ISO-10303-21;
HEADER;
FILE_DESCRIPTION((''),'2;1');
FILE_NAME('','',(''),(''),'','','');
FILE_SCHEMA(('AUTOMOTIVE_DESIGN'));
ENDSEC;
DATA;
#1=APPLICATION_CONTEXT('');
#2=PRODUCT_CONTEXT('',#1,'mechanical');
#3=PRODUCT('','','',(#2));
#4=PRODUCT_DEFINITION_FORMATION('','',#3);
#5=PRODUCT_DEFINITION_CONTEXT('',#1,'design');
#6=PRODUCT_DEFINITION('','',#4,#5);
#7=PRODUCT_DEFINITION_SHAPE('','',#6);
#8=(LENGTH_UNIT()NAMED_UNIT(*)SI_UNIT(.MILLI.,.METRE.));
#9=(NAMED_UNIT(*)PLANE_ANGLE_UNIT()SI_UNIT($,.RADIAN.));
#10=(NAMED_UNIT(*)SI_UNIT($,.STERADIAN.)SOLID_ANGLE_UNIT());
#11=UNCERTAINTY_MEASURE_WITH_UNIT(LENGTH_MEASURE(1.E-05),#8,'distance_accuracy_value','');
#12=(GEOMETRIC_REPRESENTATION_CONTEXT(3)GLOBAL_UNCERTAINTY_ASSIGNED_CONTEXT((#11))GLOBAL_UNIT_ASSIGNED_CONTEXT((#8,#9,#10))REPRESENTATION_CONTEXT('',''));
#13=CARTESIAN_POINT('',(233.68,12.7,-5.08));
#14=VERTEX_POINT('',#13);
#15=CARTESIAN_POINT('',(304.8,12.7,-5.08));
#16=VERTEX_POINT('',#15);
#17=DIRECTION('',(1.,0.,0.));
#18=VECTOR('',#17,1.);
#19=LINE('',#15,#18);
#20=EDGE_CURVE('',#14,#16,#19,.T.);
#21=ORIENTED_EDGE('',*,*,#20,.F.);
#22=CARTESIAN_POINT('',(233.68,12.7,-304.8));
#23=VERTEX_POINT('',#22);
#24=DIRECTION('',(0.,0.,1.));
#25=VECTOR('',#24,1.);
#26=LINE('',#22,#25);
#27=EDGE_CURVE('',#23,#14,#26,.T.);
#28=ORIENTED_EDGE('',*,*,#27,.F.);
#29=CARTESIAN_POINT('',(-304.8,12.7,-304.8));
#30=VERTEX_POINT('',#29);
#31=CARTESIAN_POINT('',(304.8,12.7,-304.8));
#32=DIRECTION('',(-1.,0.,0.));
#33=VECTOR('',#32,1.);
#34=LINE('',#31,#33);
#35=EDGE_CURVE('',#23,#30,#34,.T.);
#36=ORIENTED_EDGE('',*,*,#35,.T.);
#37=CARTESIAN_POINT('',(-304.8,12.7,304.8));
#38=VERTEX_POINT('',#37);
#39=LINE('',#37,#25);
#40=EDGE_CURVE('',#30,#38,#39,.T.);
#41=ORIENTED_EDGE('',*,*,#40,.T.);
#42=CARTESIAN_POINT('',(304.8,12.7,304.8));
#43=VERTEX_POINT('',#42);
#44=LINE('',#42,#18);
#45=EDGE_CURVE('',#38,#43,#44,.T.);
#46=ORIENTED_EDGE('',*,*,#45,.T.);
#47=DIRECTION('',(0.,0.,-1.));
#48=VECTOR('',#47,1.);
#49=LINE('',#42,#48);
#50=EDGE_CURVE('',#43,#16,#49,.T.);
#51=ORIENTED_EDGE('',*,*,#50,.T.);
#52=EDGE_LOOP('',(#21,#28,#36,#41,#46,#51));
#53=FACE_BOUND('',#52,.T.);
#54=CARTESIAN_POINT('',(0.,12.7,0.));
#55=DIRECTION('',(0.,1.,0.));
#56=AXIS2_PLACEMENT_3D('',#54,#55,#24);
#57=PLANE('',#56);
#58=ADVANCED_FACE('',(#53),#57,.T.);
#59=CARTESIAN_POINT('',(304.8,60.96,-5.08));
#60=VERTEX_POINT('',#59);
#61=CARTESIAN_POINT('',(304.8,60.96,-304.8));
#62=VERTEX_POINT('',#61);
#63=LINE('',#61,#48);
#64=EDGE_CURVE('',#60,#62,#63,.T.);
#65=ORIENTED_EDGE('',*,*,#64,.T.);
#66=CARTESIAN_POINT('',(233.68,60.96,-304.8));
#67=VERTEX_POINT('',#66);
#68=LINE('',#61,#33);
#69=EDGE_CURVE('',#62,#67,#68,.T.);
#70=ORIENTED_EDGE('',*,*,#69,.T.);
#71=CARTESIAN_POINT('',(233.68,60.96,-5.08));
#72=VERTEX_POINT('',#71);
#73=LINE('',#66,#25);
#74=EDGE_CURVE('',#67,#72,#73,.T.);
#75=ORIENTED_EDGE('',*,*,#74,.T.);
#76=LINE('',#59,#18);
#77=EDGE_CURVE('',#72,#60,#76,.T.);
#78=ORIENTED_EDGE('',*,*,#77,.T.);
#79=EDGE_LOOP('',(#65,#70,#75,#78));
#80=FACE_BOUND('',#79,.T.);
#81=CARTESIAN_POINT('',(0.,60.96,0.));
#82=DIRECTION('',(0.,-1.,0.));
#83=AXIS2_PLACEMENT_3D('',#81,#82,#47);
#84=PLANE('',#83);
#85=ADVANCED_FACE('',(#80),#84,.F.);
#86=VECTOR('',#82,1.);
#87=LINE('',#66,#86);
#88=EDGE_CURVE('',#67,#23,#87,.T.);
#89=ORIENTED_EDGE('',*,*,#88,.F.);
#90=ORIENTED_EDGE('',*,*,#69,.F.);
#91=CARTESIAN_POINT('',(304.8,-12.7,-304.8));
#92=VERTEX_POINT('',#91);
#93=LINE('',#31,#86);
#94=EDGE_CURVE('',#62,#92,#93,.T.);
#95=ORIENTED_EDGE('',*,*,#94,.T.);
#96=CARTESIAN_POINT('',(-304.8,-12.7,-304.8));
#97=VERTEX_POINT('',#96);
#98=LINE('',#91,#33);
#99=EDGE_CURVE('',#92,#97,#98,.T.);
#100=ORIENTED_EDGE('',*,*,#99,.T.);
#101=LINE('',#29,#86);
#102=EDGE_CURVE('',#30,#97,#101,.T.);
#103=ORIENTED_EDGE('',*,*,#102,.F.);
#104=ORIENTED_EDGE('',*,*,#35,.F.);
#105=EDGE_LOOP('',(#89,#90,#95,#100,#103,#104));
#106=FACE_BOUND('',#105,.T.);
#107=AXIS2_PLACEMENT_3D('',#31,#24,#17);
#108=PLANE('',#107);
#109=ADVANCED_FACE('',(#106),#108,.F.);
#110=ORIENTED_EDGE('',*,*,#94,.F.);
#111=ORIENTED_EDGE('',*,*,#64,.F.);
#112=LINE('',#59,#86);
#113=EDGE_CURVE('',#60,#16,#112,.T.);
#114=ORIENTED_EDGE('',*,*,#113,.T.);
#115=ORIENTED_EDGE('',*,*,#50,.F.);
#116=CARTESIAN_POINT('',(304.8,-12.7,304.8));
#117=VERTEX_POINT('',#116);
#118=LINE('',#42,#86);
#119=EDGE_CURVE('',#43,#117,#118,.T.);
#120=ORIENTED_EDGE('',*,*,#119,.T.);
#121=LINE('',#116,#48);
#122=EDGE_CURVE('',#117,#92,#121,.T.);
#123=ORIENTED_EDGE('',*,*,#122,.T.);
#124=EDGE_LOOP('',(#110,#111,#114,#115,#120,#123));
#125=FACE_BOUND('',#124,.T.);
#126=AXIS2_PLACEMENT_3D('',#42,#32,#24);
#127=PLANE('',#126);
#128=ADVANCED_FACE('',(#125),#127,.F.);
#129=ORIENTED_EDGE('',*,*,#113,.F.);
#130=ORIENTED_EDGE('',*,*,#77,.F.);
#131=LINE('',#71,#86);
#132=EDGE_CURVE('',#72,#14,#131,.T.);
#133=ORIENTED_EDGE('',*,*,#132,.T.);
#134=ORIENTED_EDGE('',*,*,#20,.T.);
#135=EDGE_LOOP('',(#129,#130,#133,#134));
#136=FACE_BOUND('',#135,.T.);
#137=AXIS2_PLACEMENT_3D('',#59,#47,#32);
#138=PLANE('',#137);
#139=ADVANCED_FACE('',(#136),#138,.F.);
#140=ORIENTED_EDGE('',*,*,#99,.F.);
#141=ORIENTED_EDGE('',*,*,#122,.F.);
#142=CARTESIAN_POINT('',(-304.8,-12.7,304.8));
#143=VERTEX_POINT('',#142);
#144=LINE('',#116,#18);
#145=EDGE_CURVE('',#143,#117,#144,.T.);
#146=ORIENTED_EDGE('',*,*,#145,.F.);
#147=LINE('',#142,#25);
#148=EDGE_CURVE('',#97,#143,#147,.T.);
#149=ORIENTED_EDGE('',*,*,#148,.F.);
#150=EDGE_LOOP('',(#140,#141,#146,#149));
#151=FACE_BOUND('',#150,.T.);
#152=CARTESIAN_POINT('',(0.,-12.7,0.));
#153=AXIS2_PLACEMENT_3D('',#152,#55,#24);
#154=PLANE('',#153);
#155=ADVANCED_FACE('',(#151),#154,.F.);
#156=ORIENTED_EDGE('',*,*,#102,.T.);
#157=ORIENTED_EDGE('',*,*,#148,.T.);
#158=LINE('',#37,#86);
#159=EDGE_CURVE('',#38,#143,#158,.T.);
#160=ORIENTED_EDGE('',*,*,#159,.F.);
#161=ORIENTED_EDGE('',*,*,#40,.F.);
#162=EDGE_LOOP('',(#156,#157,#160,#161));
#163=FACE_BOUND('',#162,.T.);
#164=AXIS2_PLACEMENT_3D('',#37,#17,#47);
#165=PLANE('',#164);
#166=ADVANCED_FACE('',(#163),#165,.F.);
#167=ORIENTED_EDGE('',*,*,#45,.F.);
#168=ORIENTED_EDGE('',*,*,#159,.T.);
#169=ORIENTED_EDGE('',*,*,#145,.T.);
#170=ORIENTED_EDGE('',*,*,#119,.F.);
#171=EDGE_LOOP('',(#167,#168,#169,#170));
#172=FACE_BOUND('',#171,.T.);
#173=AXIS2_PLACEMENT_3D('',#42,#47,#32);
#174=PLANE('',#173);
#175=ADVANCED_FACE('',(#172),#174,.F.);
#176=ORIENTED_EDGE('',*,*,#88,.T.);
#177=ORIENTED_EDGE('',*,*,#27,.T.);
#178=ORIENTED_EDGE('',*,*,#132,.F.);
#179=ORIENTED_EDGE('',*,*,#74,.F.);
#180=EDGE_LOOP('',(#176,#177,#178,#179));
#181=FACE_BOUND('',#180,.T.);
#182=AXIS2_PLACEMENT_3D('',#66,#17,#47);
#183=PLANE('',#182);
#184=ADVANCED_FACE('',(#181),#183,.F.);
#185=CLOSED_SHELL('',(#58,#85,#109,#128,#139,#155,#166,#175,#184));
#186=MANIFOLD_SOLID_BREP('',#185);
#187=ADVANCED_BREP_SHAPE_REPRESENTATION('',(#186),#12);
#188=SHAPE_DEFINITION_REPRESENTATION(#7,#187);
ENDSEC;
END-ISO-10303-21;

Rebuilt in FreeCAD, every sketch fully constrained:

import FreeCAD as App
import Part
import Sketcher
Q = App.Units.Quantity


def add_polygon(sketch, points):
    """Adds a closed chain of lines whose ends are joined by coincident constraints."""
    first, n = sketch.GeometryCount, len(points)
    for a, b in zip(points, points[1:] + points[:1]):
        sketch.addGeometry(Part.LineSegment(App.Vector(*a, 0), App.Vector(*b, 0)), False)
    for i in range(n):
        sketch.addConstraint(Sketcher.Constraint("Coincident", first + i, 2, first + (i + 1) % n, 1))

doc = App.newDocument("Part")
body = doc.addObject("PartDesign::Body", "Body")

# Sketch on XZ plane
sketch1 = body.newObject("Sketcher::SketchObject", "Sketch")
sketch1.AttachmentSupport = (doc.getObject("XZ_Plane"), [""])
sketch1.MapMode = "FlatFace"
add_polygon(sketch1, [(-304.8, -304.8), (-304.8, 304.8), (304.8, 304.8), (304.8, -304.8)])  # lines 0-3
sketch1.addConstraint([
    Sketcher.Constraint("Vertical", 0),
    Sketcher.Constraint("Horizontal", 1),
    Sketcher.Constraint("Vertical", 2),
    Sketcher.Constraint("Horizontal", 3),
    Sketcher.Constraint("Symmetric", 0, 2, 2, 2, -1, 1),
    Sketcher.Constraint("Equal", 3, 0),
    Sketcher.Constraint("DistanceX", 1, 1, 1, 2, Q("24 in")),
])
pad1 = body.newObject("PartDesign::Pad", "Pad")
pad1.Profile = sketch1
pad1.Length = Q("1 in")
pad1.Midplane = True

# Sketch on XZ plane
sketch2 = body.newObject("Sketcher::SketchObject", "Sketch001")
sketch2.AttachmentSupport = (doc.getObject("XZ_Plane"), [""])
sketch2.MapMode = "FlatFace"
sketch2.AttachmentOffset = App.Placement(App.Vector(0, 0, -0.5 * 25.4), App.Rotation())
add_polygon(sketch2, [(233.68, -304.8), (233.68, -5.08), (304.8, -5.08), (304.8, -304.8)])  # lines 0-3
sketch2.addConstraint([
    Sketcher.Constraint("Vertical", 0),
    Sketcher.Constraint("Horizontal", 1),
    Sketcher.Constraint("Vertical", 2),
    Sketcher.Constraint("Horizontal", 3),
    Sketcher.Constraint("DistanceX", 1, 1, 1, 2, Q("2.8 in")),
    Sketcher.Constraint("DistanceY", 0, 1, 0, 2, Q("11.8 in")),
    Sketcher.Constraint("DistanceX", -1, 1, 1, 2, Q("12 in")),
    Sketcher.Constraint("DistanceY", 2, 2, -1, 1, Q("12 in")),
])
pad2 = body.newObject("PartDesign::Pad", "Pad001")
pad2.Profile = sketch2
pad2.Length = Q("1.9 in")
pad2.Reversed = True

doc.recompute()
